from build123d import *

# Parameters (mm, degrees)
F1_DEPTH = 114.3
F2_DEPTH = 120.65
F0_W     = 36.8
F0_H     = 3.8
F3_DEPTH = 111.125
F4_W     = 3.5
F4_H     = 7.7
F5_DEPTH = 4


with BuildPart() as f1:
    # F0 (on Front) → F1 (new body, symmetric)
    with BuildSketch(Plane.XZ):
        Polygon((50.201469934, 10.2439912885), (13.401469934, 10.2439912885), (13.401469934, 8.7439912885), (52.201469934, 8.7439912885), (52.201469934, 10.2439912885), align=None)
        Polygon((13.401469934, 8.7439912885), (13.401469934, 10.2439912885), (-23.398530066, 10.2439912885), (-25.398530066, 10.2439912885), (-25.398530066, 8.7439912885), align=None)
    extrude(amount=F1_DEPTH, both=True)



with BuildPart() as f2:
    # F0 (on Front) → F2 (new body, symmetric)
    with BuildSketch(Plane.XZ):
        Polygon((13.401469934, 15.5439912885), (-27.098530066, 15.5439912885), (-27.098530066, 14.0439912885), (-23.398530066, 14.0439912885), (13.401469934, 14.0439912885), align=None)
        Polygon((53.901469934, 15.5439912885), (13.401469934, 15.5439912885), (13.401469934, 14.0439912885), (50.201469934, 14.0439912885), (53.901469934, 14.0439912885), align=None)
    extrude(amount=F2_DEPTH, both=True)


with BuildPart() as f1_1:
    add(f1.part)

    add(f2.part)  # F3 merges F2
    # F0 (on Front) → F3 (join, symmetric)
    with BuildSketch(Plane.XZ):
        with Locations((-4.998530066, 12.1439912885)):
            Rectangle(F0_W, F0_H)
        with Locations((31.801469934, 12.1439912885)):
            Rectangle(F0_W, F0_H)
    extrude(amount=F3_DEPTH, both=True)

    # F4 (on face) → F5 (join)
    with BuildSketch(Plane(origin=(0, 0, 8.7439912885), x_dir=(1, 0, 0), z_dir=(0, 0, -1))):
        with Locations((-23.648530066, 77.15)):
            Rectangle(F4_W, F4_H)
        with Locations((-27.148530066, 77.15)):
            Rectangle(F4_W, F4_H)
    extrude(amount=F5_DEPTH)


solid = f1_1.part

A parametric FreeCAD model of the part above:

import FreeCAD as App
import Part
import Sketcher

V = App.Vector

doc = App.newDocument("Part")
body = doc.addObject("PartDesign::Body", "Body")

sketch1 = body.newObject("Sketcher::SketchObject", "Sketch")
sketch1.AttachmentSupport = (doc.getObject("XZ_Plane"), [""])
sketch1.MapMode = "FlatFace"
sketch1.addGeometry([
    Part.LineSegment(V(52.20147, 8.743991, 0), V(52.20147, 10.243991, 0)),
    Part.LineSegment(V(52.20147, 10.243991, 0), V(-25.39853, 10.243991, 0)),
    Part.LineSegment(V(-25.39853, 10.243991, 0), V(-25.39853, 8.743991, 0)),
    Part.LineSegment(V(-25.39853, 8.743991, 0), V(52.20147, 8.743991, 0)),
], False)
sketch1.addConstraint([
    Sketcher.Constraint("Coincident", 0, 2, 1, 1),
    Sketcher.Constraint("Coincident", 1, 2, 2, 1),
    Sketcher.Constraint("Coincident", 2, 2, 3, 1),
    Sketcher.Constraint("Coincident", 3, 2, 0, 1),
    Sketcher.Constraint("Vertical", 0),
    Sketcher.Constraint("Horizontal", 1),
    Sketcher.Constraint("Vertical", 2),
    Sketcher.Constraint("Horizontal", 3),
    Sketcher.Constraint("DistanceX", 1, 2, 1, 1, 77.6),
    Sketcher.Constraint("DistanceY", 0, 1, 0, 2, 1.5),
    Sketcher.Constraint("DistanceX", -1, 1, 0, 2, 52.20147),
    Sketcher.Constraint("DistanceY", -1, 1, 0, 2, 10.243991),
])
pad1 = body.newObject("PartDesign::Pad", "Pad")
pad1.Profile = sketch1
pad1.Length = 228.6
pad1.Midplane = True
body2 = doc.addObject("PartDesign::Body", "Body001")

sketch2 = body2.newObject("Sketcher::SketchObject", "Sketch001")
sketch2.AttachmentSupport = (doc.getObject("XZ_Plane001"), [""])
sketch2.MapMode = "FlatFace"
sketch2.addGeometry([
    Part.LineSegment(V(-27.09853, 15.543991, 0), V(-27.09853, 14.043991, 0)),
    Part.LineSegment(V(-27.09853, 14.043991, 0), V(53.90147, 14.043991, 0)),
    Part.LineSegment(V(53.90147, 14.043991, 0), V(53.90147, 15.543991, 0)),
    Part.LineSegment(V(53.90147, 15.543991, 0), V(-27.09853, 15.543991, 0)),
], False)
sketch2.addConstraint([
    Sketcher.Constraint("Coincident", 0, 2, 1, 1),
    Sketcher.Constraint("Coincident", 1, 2, 2, 1),
    Sketcher.Constraint("Coincident", 2, 2, 3, 1),
    Sketcher.Constraint("Coincident", 3, 2, 0, 1),
    Sketcher.Constraint("Vertical", 0),
    Sketcher.Constraint("Horizontal", 1),
    Sketcher.Constraint("Vertical", 2),
    Sketcher.Constraint("Horizontal", 3),
    Sketcher.Constraint("DistanceX", 1, 1, 1, 2, 81.0),
    Sketcher.Constraint("DistanceY", 0, 2, 0, 1, 1.5),
    Sketcher.Constraint("DistanceX", 0, 2, -1, 1, 27.09853),
    Sketcher.Constraint("DistanceY", -1, 1, 0, 2, 14.043991),
])
pad2 = body2.newObject("PartDesign::Pad", "Pad001")
pad2.Profile = sketch2
pad2.Length = 241.3
pad2.Midplane = True
body.AllowCompound = True
doc.recompute()

boolean = body.newObject("PartDesign::Boolean", "Boolean")
boolean.Type = "Fuse"
boolean.addObjects([body2])

sketch3 = body.newObject("Sketcher::SketchObject", "Sketch002")
sketch3.AttachmentSupport = (doc.getObject("XZ_Plane"), [""])
sketch3.MapMode = "FlatFace"
sketch3.addGeometry([
    Part.LineSegment(V(-23.39853, 14.043991, 0), V(-23.39853, 10.243991, 0)),
    Part.LineSegment(V(-23.39853, 10.243991, 0), V(50.20147, 10.243991, 0)),
    Part.LineSegment(V(50.20147, 10.243991, 0), V(50.20147, 14.043991, 0)),
    Part.LineSegment(V(50.20147, 14.043991, 0), V(-23.39853, 14.043991, 0)),
], False)
sketch3.addConstraint([
    Sketcher.Constraint("Coincident", 0, 2, 1, 1),
    Sketcher.Constraint("Coincident", 1, 2, 2, 1),
    Sketcher.Constraint("Coincident", 2, 2, 3, 1),
    Sketcher.Constraint("Coincident", 3, 2, 0, 1),
    Sketcher.Constraint("Vertical", 0),
    Sketcher.Constraint("Horizontal", 1),
    Sketcher.Constraint("Vertical", 2),
    Sketcher.Constraint("Horizontal", 3),
    Sketcher.Constraint("DistanceX", 1, 1, 1, 2, 73.6),
    Sketcher.Constraint("DistanceY", 0, 2, 0, 1, 3.8),
    Sketcher.Constraint("DistanceX", 0, 2, -1, 1, 23.39853),
    Sketcher.Constraint("DistanceY", -1, 1, 0, 2, 10.243991),
])
pad3 = body.newObject("PartDesign::Pad", "Pad002")
pad3.Profile = sketch3
pad3.Length = 222.25
pad3.Midplane = True

sketch4 = body.newObject("Sketcher::SketchObject", "Sketch003")
sketch4.AttachmentSupport = (doc.getObject("XY_Plane"), [""])
sketch4.MapMode = "FlatFace"
sketch4.AttachmentOffset = App.Placement(V(0, 0, 8.743991), App.Rotation())
sketch4.addGeometry([
    Part.LineSegment(V(-21.89853, -73.3, 0), V(-21.89853, -81, 0)),
    Part.LineSegment(V(-21.89853, -81, 0), V(-28.89853, -81, 0)),
    Part.LineSegment(V(-28.89853, -81, 0), V(-28.89853, -73.3, 0)),
    Part.LineSegment(V(-28.89853, -73.3, 0), V(-21.89853, -73.3, 0)),
], False)
sketch4.addConstraint([
    Sketcher.Constraint("Coincident", 0, 2, 1, 1),
    Sketcher.Constraint("Coincident", 1, 2, 2, 1),
    Sketcher.Constraint("Coincident", 2, 2, 3, 1),
    Sketcher.Constraint("Coincident", 3, 2, 0, 1),
    Sketcher.Constraint("Vertical", 0),
    Sketcher.Constraint("Horizontal", 1),
    Sketcher.Constraint("Vertical", 2),
    Sketcher.Constraint("Horizontal", 3),
    Sketcher.Constraint("DistanceX", 1, 2, 1, 1, 7.0),
    Sketcher.Constraint("DistanceY", 0, 2, 0, 1, 7.7),
    Sketcher.Constraint("DistanceY", 0, 2, -1, 1, 81.0),
    Sketcher.Constraint("DistanceX", 0, 2, -1, 1, 21.89853),
])
pad4 = body.newObject("PartDesign::Pad", "Pad003")
pad4.Profile = sketch4
pad4.Length = 4
pad4.Reversed = True

doc.recompute()
